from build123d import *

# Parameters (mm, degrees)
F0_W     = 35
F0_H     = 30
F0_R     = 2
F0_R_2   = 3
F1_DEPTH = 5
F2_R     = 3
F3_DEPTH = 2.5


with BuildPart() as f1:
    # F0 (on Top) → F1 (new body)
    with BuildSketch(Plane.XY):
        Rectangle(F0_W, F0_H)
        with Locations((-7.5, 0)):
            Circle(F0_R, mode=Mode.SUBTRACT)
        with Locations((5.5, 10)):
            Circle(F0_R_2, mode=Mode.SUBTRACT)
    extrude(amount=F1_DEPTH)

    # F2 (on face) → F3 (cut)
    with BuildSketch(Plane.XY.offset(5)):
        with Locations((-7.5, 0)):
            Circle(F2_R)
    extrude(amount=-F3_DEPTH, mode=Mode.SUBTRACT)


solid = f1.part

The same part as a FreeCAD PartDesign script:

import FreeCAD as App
import Part
import Sketcher

V = App.Vector


def add_polygon(sketch, points):
    """Adds a closed chain of lines whose ends are joined by coincident constraints."""
    first, n = sketch.GeometryCount, len(points)
    for a, b in zip(points, points[1:] + points[:1]):
        sketch.addGeometry(Part.LineSegment(App.Vector(*a, 0), App.Vector(*b, 0)), False)
    for i in range(n):
        sketch.addConstraint(Sketcher.Constraint("Coincident", first + i, 2, first + (i + 1) % n, 1))

doc = App.newDocument("Part")
body = doc.addObject("PartDesign::Body", "Body")

sketch1 = doc.addObject("Sketcher::SketchObject", "Sketch")
body.addObject(sketch1)
sketch1.AttachmentSupport = (doc.XY_Plane, [""])
sketch1.MapMode = "FlatFace"
add_polygon(sketch1, [(-17.5, 15), (-17.5, -15), (17.5, -15), (17.5, 15)])
sketch1.addGeometry(Part.Circle(V(-7.5, 0, 0), V(0, 0, 1), 2), False)
sketch1.addGeometry(Part.Circle(V(5.5, 10, 0), V(0, 0, 1), 3), False)
sketch1.addConstraint([
    Sketcher.Constraint("Vertical", 0),
    Sketcher.Constraint("Horizontal", 1),
    Sketcher.Constraint("Vertical", 2),
    Sketcher.Constraint("Horizontal", 3),
    Sketcher.Constraint("Symmetric", 0, 2, 2, 2, -1, 1),
    Sketcher.Constraint("PointOnObject", 4, 3, -1),
    Sketcher.Constraint("Diameter", 4, 4.0),
    Sketcher.Constraint("Diameter", 5, 6.0),
    Sketcher.Constraint("DistanceX", 1, 1, 1, 2, 35.0),
    Sketcher.Constraint("DistanceY", 0, 2, 0, 1, 30.0),
    Sketcher.Constraint("DistanceY", -1, 1, 5, 3, 10.0),
    Sketcher.Constraint("DistanceX", 4, 3, 5, 3, 13.0),
    Sketcher.Constraint("DistanceX", 0, 2, 4, 3, 10.0),
])
pad1 = doc.addObject("PartDesign::Pad", "Pad")
body.addObject(pad1)
pad1.Profile = sketch1
pad1.Length = 5

sketch2 = doc.addObject("Sketcher::SketchObject", "Sketch001")
body.addObject(sketch2)
sketch2.AttachmentSupport = (doc.XY_Plane, [""])
sketch2.MapMode = "FlatFace"
sketch2.AttachmentOffset = App.Placement(V(0, 0, 5), App.Rotation())
sketch2.addGeometry(Part.Circle(V(-7.5, 0, 0), V(0, 0, 1), 3), False)
sketch2.addConstraint([
    Sketcher.Constraint("PointOnObject", 0, 3, -1),
    Sketcher.Constraint("Diameter", 0, 6.0),
    Sketcher.Constraint("DistanceX", 0, 3, -1, 1, 7.5),
])
pocket1 = doc.addObject("PartDesign::Pocket", "Pocket")
body.addObject(pocket1)
pocket1.Profile = sketch2
pocket1.Length = 2.5

doc.recompute()
